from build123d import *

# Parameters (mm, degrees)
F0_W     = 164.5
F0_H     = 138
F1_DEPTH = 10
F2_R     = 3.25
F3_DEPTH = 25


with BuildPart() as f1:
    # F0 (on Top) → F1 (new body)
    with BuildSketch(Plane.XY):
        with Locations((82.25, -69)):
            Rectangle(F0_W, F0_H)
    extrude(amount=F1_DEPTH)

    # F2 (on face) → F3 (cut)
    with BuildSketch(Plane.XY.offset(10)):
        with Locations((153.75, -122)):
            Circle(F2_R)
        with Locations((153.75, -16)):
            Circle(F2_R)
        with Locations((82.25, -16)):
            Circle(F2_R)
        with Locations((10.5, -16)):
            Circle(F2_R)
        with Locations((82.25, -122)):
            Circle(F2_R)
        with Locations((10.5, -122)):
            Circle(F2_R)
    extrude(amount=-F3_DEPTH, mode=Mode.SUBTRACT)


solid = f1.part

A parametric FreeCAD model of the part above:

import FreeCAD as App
import Part
import Sketcher
from FreeCAD import Vector
Q = App.Units.Quantity

doc = App.newDocument("Part")
params = doc.addObject("Spreadsheet::Sheet", "Params")
for row, (alias, value) in enumerate([
    ("sketch1_height", "138 mm"),
    ("sketch1_width", "164.5 mm"),
    ("pad1_length", "10 mm"),
    ("sketch2_diameter", "6.5 mm"),
    ("pocket1_length", "25 mm"),
], start=1):
    params.set(f"A{row}", alias)
    params.set(f"B{row}", "=" + value)
    params.setAlias(f"B{row}", alias)

body = doc.addObject("PartDesign::Body", "Body")

sketch1 = body.newObject("Sketcher::SketchObject", "Sketch")
sketch1.AttachmentSupport = (doc.getObject("XY_Plane"), [""])
sketch1.MapMode = "FlatFace"
sketch1.addGeometry(Part.LineSegment(Vector(0, 0, 0), Vector(0, -138, 0)), False)
sketch1.addGeometry(Part.LineSegment(Vector(0, -138, 0), Vector(164.5, -138, 0)), False)
sketch1.addGeometry(Part.LineSegment(Vector(164.5, -138, 0), Vector(164.5, 0, 0)), False)
sketch1.addGeometry(Part.LineSegment(Vector(164.5, 0, 0), Vector(0, 0, 0)), False)
sketch1.addConstraint(Sketcher.Constraint("Coincident", 0, 2, 1, 1))
sketch1.addConstraint(Sketcher.Constraint("Coincident", 1, 2, 2, 1))
sketch1.addConstraint(Sketcher.Constraint("Coincident", 2, 2, 3, 1))
sketch1.addConstraint(Sketcher.Constraint("Coincident", 3, 2, 0, 1))
sketch1.addConstraint(Sketcher.Constraint("Vertical", 0))
sketch1.addConstraint(Sketcher.Constraint("Horizontal", 1))
sketch1.addConstraint(Sketcher.Constraint("Vertical", 2))
sketch1.addConstraint(Sketcher.Constraint("Horizontal", 3))
sketch1.addConstraint(Sketcher.Constraint("Coincident", 3, 2, -1, 1))
sketch1.addConstraint(Sketcher.Constraint("DistanceY", 0, 2, 0, 1, Q("138 mm")))
sketch1.addConstraint(Sketcher.Constraint("DistanceX", 1, 1, 1, 2, Q("164.5 mm")))
sketch1.setExpression("Constraints[9]", "Params.sketch1_height")
sketch1.setExpression("Constraints[10]", "Params.sketch1_width")
pad1 = body.newObject("PartDesign::Pad", "Pad")
pad1.Profile = sketch1
pad1.setExpression("Length", "Params.pad1_length")

sketch2 = body.newObject("Sketcher::SketchObject", "Sketch001")
sketch2.AttachmentSupport = (doc.getObject("XY_Plane"), [""])
sketch2.MapMode = "FlatFace"
sketch2.AttachmentOffset = App.Placement(Vector(0, 0, 10), App.Rotation())
sketch2.addGeometry(Part.Circle(Vector(153.75, -122, 0), Vector(0, 0, 1), 3.25), False)
sketch2.addGeometry(Part.Circle(Vector(153.75, -16, 0), Vector(0, 0, 1), 3.25), False)
sketch2.addGeometry(Part.Circle(Vector(82.25, -16, 0), Vector(0, 0, 1), 3.25), False)
sketch2.addGeometry(Part.Circle(Vector(10.5, -16, 0), Vector(0, 0, 1), 3.25), False)
sketch2.addGeometry(Part.Circle(Vector(82.25, -122, 0), Vector(0, 0, 1), 3.25), False)
sketch2.addGeometry(Part.Circle(Vector(10.5, -122, 0), Vector(0, 0, 1), 3.25), False)
sketch2.addConstraint(Sketcher.Constraint("Equal", 0, 1))
sketch2.addConstraint(Sketcher.Constraint("Equal", 1, 2))
sketch2.addConstraint(Sketcher.Constraint("Equal", 2, 3))
sketch2.addConstraint(Sketcher.Constraint("Equal", 3, 4))
sketch2.addConstraint(Sketcher.Constraint("Equal", 4, 5))
sketch2.addConstraint(Sketcher.Constraint("Horizontal", 1, 3, 2, 3))
sketch2.addConstraint(Sketcher.Constraint("Horizontal", 2, 3, 3, 3))
sketch2.addConstraint(Sketcher.Constraint("Horizontal", 0, 3, 4, 3))
sketch2.addConstraint(Sketcher.Constraint("Horizontal", 4, 3, 5, 3))
sketch2.addConstraint(Sketcher.Constraint("Vertical", 0, 3, 1, 3))
sketch2.addConstraint(Sketcher.Constraint("Vertical", 2, 3, 4, 3))
sketch2.addConstraint(Sketcher.Constraint("Vertical", 3, 3, 5, 3))
sketch2.addConstraint(Sketcher.Constraint("Diameter", 0, Q("6.5 mm")))
sketch2.addConstraint(Sketcher.Constraint("DistanceY", 0, 3, -1, 1, Q("122 mm")))
sketch2.addConstraint(Sketcher.Constraint("DistanceY", 1, 3, -1, 1, Q("16 mm")))
sketch2.addConstraint(Sketcher.Constraint("DistanceX", -1, 1, 3, 3, Q("10.5 mm")))
sketch2.addConstraint(Sketcher.Constraint("DistanceX", 2, 3, 1, 3, Q("71.5 mm")))
sketch2.addConstraint(Sketcher.Constraint("DistanceX", -1, 1, 0, 3, Q("153.75 mm")))
sketch2.setExpression("Constraints[12]", "Params.sketch2_diameter")
pocket1 = body.newObject("PartDesign::Pocket", "Pocket")
pocket1.Profile = sketch2
pocket1.setExpression("Length", "Params.pocket1_length")

doc.recompute()
